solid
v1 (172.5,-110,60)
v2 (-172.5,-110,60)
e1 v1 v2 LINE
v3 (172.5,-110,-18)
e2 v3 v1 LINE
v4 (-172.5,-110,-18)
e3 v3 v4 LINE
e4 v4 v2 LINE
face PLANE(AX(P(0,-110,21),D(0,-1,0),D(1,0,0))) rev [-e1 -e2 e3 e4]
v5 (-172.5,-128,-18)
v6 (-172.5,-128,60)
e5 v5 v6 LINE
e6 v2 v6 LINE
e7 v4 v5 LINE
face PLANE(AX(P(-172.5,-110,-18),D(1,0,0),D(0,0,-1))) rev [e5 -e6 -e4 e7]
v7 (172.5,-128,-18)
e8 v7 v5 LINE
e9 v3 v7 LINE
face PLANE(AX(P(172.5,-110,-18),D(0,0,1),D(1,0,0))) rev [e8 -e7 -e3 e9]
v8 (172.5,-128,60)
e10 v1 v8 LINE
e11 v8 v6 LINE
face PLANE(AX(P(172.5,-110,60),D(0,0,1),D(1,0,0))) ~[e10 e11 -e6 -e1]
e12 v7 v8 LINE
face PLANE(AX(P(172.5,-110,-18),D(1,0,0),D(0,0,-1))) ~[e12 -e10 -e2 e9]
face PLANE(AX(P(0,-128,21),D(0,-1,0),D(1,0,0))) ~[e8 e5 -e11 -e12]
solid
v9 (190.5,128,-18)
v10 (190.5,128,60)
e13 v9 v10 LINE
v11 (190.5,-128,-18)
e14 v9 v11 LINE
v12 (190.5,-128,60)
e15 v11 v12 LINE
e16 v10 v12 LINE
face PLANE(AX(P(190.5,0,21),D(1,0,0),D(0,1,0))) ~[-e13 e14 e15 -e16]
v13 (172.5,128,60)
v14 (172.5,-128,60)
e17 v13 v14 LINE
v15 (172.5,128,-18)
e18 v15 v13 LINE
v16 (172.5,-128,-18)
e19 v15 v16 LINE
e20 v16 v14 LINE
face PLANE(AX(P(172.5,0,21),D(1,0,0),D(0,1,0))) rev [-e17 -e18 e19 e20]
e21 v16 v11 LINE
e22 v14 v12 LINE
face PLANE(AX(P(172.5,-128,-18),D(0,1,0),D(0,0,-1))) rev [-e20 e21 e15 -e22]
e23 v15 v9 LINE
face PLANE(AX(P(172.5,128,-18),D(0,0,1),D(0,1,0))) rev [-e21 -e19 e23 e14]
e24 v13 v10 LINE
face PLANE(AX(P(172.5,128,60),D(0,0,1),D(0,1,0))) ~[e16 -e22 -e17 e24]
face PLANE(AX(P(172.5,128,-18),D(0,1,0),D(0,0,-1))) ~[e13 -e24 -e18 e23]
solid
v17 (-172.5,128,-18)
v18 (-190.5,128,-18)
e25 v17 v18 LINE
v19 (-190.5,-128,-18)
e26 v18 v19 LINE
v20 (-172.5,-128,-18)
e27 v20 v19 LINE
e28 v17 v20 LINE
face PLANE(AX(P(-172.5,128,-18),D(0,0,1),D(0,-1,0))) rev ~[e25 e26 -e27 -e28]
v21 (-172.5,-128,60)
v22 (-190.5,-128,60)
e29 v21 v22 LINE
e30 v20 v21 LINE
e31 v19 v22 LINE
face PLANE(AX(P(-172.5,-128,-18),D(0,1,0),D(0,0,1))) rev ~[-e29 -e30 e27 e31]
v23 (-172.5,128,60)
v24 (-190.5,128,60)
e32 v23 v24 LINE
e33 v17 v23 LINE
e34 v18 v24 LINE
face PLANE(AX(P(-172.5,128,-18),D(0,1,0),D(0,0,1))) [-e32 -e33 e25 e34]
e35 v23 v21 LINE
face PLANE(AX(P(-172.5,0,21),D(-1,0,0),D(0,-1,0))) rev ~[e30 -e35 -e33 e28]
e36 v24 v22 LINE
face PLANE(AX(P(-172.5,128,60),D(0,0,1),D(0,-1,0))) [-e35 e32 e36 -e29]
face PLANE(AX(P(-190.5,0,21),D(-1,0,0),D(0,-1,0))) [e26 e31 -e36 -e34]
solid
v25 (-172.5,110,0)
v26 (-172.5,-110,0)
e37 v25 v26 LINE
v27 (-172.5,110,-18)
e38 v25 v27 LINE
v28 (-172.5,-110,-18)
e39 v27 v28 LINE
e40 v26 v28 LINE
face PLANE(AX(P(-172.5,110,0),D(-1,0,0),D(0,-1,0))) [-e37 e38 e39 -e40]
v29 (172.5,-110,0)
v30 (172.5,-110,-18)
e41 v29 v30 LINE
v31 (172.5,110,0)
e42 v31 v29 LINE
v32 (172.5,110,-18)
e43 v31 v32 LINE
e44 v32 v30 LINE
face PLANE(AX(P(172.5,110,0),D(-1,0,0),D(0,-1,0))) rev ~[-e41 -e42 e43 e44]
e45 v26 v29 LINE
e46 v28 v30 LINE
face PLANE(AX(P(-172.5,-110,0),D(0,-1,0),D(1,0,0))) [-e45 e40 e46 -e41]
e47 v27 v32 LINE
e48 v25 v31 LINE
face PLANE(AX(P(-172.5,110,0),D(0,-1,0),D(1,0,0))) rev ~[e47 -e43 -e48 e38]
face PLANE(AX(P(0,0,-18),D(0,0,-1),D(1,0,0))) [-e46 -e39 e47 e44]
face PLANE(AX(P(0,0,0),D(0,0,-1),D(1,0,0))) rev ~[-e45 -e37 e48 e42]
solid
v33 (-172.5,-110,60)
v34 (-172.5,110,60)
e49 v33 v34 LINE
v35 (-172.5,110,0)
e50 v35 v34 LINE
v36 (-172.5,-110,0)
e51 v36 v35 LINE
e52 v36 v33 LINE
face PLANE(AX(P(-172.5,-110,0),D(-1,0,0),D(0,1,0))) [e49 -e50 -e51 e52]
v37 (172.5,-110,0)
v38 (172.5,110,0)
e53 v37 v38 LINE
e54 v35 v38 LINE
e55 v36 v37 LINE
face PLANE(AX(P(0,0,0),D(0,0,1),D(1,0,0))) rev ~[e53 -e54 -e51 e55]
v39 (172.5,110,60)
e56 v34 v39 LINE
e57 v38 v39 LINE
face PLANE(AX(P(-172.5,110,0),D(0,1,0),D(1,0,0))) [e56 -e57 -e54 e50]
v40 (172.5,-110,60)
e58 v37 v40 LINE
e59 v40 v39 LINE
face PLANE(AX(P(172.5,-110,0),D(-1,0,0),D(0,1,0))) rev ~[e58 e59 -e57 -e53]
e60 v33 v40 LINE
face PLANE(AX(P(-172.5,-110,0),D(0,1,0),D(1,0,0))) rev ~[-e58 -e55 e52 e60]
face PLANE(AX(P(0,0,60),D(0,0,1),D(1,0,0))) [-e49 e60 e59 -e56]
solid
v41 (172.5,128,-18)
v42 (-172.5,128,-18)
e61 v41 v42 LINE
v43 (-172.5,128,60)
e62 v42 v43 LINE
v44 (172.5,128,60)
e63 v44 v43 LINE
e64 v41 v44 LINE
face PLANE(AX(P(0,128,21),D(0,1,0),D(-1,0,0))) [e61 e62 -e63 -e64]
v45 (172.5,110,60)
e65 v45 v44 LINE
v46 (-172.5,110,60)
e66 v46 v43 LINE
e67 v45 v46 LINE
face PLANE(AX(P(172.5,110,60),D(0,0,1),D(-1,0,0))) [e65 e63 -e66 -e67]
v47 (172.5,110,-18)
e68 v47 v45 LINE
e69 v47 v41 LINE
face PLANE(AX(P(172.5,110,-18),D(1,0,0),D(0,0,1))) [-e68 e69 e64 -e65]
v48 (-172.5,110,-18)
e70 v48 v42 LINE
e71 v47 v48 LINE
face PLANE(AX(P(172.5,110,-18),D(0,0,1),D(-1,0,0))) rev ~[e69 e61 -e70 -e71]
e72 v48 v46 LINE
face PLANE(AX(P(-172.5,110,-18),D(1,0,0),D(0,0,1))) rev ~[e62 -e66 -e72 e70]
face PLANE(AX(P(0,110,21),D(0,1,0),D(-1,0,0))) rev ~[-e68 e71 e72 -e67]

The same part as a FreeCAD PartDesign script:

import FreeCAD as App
import Part
import Sketcher
Q = App.Units.Quantity

doc = App.newDocument("Part")
body = doc.addObject("PartDesign::Body", "Body")

# Sketch on XY plane
sketch1 = body.newObject("Sketcher::SketchObject", "Sketch")
sketch1.AttachmentSupport = (doc.getObject("XY_Plane"), [""])
sketch1.MapMode = "FlatFace"
sketch1.addGeometry([
    Part.LineSegment(App.Vector(-172, 110, 0), App.Vector(-172, -110, 0)),
    Part.LineSegment(App.Vector(-172, -110, 0), App.Vector(172, -110, 0)),
    Part.LineSegment(App.Vector(172, -110, 0), App.Vector(172, 110, 0)),
    Part.LineSegment(App.Vector(172, 110, 0), App.Vector(-172, 110, 0)),
], False)
sketch1.addConstraint([
    Sketcher.Constraint("Coincident", 0, 2, 1, 1),
    Sketcher.Constraint("Coincident", 1, 2, 2, 1),
    Sketcher.Constraint("Coincident", 2, 2, 3, 1),
    Sketcher.Constraint("Coincident", 3, 2, 0, 1),
    Sketcher.Constraint("Vertical", 0),
    Sketcher.Constraint("Horizontal", 1),
    Sketcher.Constraint("Vertical", 2),
    Sketcher.Constraint("Horizontal", 3),
    Sketcher.Constraint("Symmetric", 0, 2, 2, 2, -1, 1),
    Sketcher.Constraint("DistanceX", 1, 1, 1, 2, Q("345 mm")),
    Sketcher.Constraint("DistanceY", 0, 2, 0, 1, Q("220 mm")),
])
pad1 = body.newObject("PartDesign::Pad", "Pad")
pad1.Profile = sketch1
pad1.Length = 60
body2 = doc.addObject("PartDesign::Body", "Body001")

# Sketch on YZ plane
sketch2 = body2.newObject("Sketcher::SketchObject", "Sketch001")
sketch2.AttachmentSupport = (doc.getObject("YZ_Plane001"), [""])
sketch2.MapMode = "FlatFace"
sketch2.AttachmentOffset = App.Placement(App.Vector(0, 0, -172.5), App.Rotation())
sketch2.addGeometry([
    Part.LineSegment(App.Vector(128, 60, 0), App.Vector(128, -18, 0)),
    Part.LineSegment(App.Vector(128, -18, 0), App.Vector(-128, -18, 0)),
    Part.LineSegment(App.Vector(-128, -18, 0), App.Vector(-128, 60, 0)),
    Part.LineSegment(App.Vector(-128, 60, 0), App.Vector(128, 60, 0)),
], False)
sketch2.addConstraint([
    Sketcher.Constraint("Coincident", 0, 2, 1, 1),
    Sketcher.Constraint("Coincident", 1, 2, 2, 1),
    Sketcher.Constraint("Coincident", 2, 2, 3, 1),
    Sketcher.Constraint("Coincident", 3, 2, 0, 1),
    Sketcher.Constraint("Vertical", 0),
    Sketcher.Constraint("Horizontal", 1),
    Sketcher.Constraint("Vertical", 2),
    Sketcher.Constraint("Horizontal", 3),
    Sketcher.Constraint("DistanceX", 1, 2, 1, 1, Q("256 mm")),
    Sketcher.Constraint("DistanceY", 0, 2, 0, 1, Q("78 mm")),
    Sketcher.Constraint("DistanceX", -1, 1, 0, 2, Q("128 mm")),
    Sketcher.Constraint("DistanceY", 0, 2, -1, 1, Q("18 mm")),
])
pad2 = body2.newObject("PartDesign::Pad", "Pad001")
pad2.Profile = sketch2
pad2.Length = 18
pad2.Reversed = True
body3 = doc.addObject("PartDesign::Body", "Body002")

# Sketch on XZ plane
sketch3 = body3.newObject("Sketcher::SketchObject", "Sketch002")
sketch3.AttachmentSupport = (doc.getObject("XZ_Plane002"), [""])
sketch3.MapMode = "FlatFace"
sketch3.AttachmentOffset = App.Placement(App.Vector(0, 0, -110), App.Rotation())
sketch3.addGeometry([
    Part.LineSegment(App.Vector(172, 60, 0), App.Vector(172, -18, 0)),
    Part.LineSegment(App.Vector(172, -18, 0), App.Vector(-172, -18, 0)),
    Part.LineSegment(App.Vector(-172, -18, 0), App.Vector(-172, 60, 0)),
    Part.LineSegment(App.Vector(-172, 60, 0), App.Vector(172, 60, 0)),
], False)
sketch3.addConstraint([
    Sketcher.Constraint("Coincident", 0, 2, 1, 1),
    Sketcher.Constraint("Coincident", 1, 2, 2, 1),
    Sketcher.Constraint("Coincident", 2, 2, 3, 1),
    Sketcher.Constraint("Coincident", 3, 2, 0, 1),
    Sketcher.Constraint("Vertical", 0),
    Sketcher.Constraint("Horizontal", 1),
    Sketcher.Constraint("Vertical", 2),
    Sketcher.Constraint("Horizontal", 3),
    Sketcher.Constraint("DistanceX", 1, 2, 1, 1, Q("345 mm")),
    Sketcher.Constraint("DistanceY", 0, 2, 0, 1, Q("78 mm")),
    Sketcher.Constraint("DistanceY", 0, 2, -1, 1, Q("18 mm")),
    Sketcher.Constraint("DistanceX", -1, 1, 0, 2, Q("172.5 mm")),
])
pad3 = body3.newObject("PartDesign::Pad", "Pad002")
pad3.Profile = sketch3
pad3.Length = 18
pad3.Reversed = True
body4 = doc.addObject("PartDesign::Body", "Body003")

# Sketch on XY plane
sketch4 = body4.newObject("Sketcher::SketchObject", "Sketch003")
sketch4.AttachmentSupport = (doc.getObject("XY_Plane003"), [""])
sketch4.MapMode = "FlatFace"
sketch4.addGeometry([
    Part.LineSegment(App.Vector(-172, -110, 0), App.Vector(-172, 110, 0)),
    Part.LineSegment(App.Vector(-172, 110, 0), App.Vector(172, 110, 0)),
    Part.LineSegment(App.Vector(172, 110, 0), App.Vector(172, -110, 0)),
    Part.LineSegment(App.Vector(172, -110, 0), App.Vector(-172, -110, 0)),
], False)
sketch4.addConstraint([
    Sketcher.Constraint("Coincident", 0, 2, 1, 1),
    Sketcher.Constraint("Coincident", 1, 2, 2, 1),
    Sketcher.Constraint("Coincident", 2, 2, 3, 1),
    Sketcher.Constraint("Coincident", 3, 2, 0, 1),
    Sketcher.Constraint("Vertical", 0),
    Sketcher.Constraint("Horizontal", 1),
    Sketcher.Constraint("Vertical", 2),
    Sketcher.Constraint("Horizontal", 3),
    Sketcher.Constraint("Symmetric", 0, 2, 2, 2, -1, 1),
    Sketcher.Constraint("DistanceX", 1, 1, 1, 2, Q("345 mm")),
    Sketcher.Constraint("DistanceY", 0, 1, 0, 2, Q("220 mm")),
])
pad4 = body4.newObject("PartDesign::Pad", "Pad003")
pad4.Profile = sketch4
pad4.Length = 18
pad4.Reversed = True
body5 = doc.addObject("PartDesign::Body", "Body004")
doc.recompute()

mirroring = doc.addObject("Part::Mirroring", "Mirroring")
mirroring.Source = body2
mirroring.Base = App.Vector(0, 0, 0)
mirroring.Normal = App.Vector(1, 0, 0)
body5.BaseFeature = mirroring
doc.recompute()
body6 = doc.addObject("PartDesign::Body", "Body005")
doc.recompute()

mirroring2 = doc.addObject("Part::Mirroring", "Mirroring001")
mirroring2.Source = body3
mirroring2.Base = App.Vector(0, 0, 0)
mirroring2.Normal = App.Vector(0, -1, 0)
body6.BaseFeature = mirroring2
doc.recompute()
mirroring.Visibility = False
mirroring2.Visibility = False

doc.recompute()
